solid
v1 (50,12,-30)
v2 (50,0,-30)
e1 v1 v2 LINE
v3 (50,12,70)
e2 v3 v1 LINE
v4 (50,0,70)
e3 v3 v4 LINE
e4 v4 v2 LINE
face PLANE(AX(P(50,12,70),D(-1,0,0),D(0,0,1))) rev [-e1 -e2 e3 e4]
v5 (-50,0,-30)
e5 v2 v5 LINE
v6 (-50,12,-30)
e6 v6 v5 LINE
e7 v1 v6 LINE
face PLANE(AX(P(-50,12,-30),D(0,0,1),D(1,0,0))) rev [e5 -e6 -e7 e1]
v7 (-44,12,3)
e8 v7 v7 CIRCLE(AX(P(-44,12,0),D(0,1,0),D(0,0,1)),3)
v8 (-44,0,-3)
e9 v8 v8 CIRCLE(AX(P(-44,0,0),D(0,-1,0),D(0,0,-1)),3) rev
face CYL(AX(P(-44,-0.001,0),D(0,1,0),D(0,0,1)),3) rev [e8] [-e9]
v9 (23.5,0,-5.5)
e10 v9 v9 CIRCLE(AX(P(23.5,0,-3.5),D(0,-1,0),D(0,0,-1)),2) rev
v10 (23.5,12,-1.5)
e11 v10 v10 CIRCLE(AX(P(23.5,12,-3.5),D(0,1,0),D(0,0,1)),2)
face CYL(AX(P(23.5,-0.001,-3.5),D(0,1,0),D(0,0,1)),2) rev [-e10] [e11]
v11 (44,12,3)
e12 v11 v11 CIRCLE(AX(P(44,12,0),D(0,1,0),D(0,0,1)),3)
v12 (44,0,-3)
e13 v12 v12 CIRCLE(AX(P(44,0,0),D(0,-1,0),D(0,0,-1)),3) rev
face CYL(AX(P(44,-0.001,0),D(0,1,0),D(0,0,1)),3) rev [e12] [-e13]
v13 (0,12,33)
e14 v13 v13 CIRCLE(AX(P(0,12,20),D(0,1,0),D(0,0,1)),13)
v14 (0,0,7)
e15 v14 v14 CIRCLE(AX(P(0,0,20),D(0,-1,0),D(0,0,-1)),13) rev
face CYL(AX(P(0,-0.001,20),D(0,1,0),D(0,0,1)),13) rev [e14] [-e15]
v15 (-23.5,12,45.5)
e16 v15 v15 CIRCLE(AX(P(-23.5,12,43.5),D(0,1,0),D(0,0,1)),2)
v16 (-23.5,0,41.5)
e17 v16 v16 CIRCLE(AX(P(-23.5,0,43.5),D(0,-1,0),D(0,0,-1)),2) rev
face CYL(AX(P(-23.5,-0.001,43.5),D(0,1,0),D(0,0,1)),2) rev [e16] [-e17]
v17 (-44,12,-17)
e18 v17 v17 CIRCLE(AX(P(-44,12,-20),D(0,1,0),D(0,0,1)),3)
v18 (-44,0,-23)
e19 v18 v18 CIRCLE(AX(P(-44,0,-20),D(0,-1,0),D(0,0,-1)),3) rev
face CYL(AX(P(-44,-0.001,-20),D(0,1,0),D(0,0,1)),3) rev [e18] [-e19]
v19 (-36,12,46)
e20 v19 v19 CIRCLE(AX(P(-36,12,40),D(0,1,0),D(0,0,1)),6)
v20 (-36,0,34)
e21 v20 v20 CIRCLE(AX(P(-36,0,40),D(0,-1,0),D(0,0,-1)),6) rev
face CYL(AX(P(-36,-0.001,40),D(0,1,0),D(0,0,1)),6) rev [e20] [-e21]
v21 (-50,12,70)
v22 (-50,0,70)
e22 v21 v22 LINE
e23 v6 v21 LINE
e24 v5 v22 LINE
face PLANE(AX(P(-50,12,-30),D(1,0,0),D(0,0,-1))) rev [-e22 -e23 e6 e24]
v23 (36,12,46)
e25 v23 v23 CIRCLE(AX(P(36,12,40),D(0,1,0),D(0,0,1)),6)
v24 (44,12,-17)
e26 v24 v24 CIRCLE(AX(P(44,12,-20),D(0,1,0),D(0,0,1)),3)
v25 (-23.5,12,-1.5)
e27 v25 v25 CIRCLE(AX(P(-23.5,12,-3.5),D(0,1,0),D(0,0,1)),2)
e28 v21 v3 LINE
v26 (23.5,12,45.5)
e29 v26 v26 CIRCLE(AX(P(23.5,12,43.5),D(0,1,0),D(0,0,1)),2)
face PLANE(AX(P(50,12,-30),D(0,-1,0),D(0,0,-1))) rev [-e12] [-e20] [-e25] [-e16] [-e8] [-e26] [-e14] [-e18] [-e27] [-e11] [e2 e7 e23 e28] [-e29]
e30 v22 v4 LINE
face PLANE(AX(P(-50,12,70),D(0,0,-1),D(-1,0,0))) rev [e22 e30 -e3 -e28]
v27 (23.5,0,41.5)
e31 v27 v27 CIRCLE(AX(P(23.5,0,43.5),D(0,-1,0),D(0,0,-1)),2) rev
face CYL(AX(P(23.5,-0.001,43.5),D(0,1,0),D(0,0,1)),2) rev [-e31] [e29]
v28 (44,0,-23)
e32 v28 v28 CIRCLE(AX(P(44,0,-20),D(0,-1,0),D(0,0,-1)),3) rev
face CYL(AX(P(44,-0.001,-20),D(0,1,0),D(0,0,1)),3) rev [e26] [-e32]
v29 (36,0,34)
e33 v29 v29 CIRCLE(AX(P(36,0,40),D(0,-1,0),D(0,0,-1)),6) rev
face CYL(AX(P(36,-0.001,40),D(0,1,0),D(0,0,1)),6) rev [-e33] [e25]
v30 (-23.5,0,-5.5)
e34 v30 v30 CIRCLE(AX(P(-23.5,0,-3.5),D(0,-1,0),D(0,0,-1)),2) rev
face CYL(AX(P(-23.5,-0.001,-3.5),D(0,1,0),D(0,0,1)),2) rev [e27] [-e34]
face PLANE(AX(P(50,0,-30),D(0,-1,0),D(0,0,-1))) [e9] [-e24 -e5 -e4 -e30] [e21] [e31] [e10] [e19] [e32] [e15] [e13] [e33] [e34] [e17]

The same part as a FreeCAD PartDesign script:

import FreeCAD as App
import Part
import Sketcher
Q = App.Units.Quantity


def add_polygon(sketch, points):
    """Adds a closed chain of lines whose ends are joined by coincident constraints."""
    first, n = sketch.GeometryCount, len(points)
    for a, b in zip(points, points[1:] + points[:1]):
        sketch.addGeometry(Part.LineSegment(App.Vector(*a, 0), App.Vector(*b, 0)), False)
    for i in range(n):
        sketch.addConstraint(Sketcher.Constraint("Coincident", first + i, 2, first + (i + 1) % n, 1))

doc = App.newDocument("Part")
body = doc.addObject("PartDesign::Body", "Body")

# Sketch on XZ plane
sketch1 = doc.addObject("Sketcher::SketchObject", "Sketch")
body.addObject(sketch1)
sketch1.AttachmentSupport = (doc.XZ_Plane, [""])
sketch1.MapMode = "FlatFace"
add_polygon(sketch1, [(-50, -30), (-50, 70), (50, 70), (50, -30)])  # lines 0-3
sketch1.addConstraint([
    Sketcher.Constraint("Vertical", 0),
    Sketcher.Constraint("Horizontal", 1),
    Sketcher.Constraint("Vertical", 2),
    Sketcher.Constraint("Horizontal", 3),
    Sketcher.Constraint("Equal", 3, 0),
    Sketcher.Constraint("DistanceX", 1, 1, 1, 2, Q("100 mm")),
    Sketcher.Constraint("DistanceX", 0, 2, -1, 1, Q("50 mm")),
    Sketcher.Constraint("DistanceY", -1, 1, 0, 2, Q("70 mm")),
])
pad1 = doc.addObject("PartDesign::Pad", "Pad")
body.addObject(pad1)
pad1.Profile = sketch1
pad1.Length = 12
pad1.Reversed = True

# Sketch on XZ plane
sketch2 = doc.addObject("Sketcher::SketchObject", "Sketch001")
body.addObject(sketch2)
sketch2.AttachmentSupport = (doc.XZ_Plane, [""])
sketch2.MapMode = "FlatFace"
sketch2.AttachmentOffset = App.Placement(App.Vector(0, 0, -12), App.Rotation())
sketch2.addGeometry(Part.Circle(App.Vector(-44, -20, 0), App.Vector(0, 0, 1), 3), False)
sketch2.addConstraint([
    Sketcher.Constraint("Diameter", 0, Q("6 mm")),
    Sketcher.Constraint("DistanceX", 0, 3, -1, 1, Q("44 mm")),
    Sketcher.Constraint("DistanceY", 0, 3, -1, 1, Q("20 mm")),
])
pocket1 = doc.addObject("PartDesign::Pocket", "Pocket")
body.addObject(pocket1)
pocket1.Profile = sketch2
pocket1.Type = "UpToFirst"
pocket1.Reversed = True

# Sketch on XZ plane
sketch3 = doc.addObject("Sketcher::SketchObject", "Sketch002")
body.addObject(sketch3)
sketch3.AttachmentSupport = (doc.XZ_Plane, [""])
sketch3.MapMode = "FlatFace"
sketch3.AttachmentOffset = App.Placement(App.Vector(0, 0, -12), App.Rotation())
sketch3.addGeometry(Part.Circle(App.Vector(-44, 0, 0), App.Vector(0, 0, 1), 3), False)
sketch3.addConstraint([
    Sketcher.Constraint("PointOnObject", 0, 3, -1),
    Sketcher.Constraint("Diameter", 0, Q("6 mm")),
    Sketcher.Constraint("DistanceX", 0, 3, -1, 1, Q("44 mm")),
])
pocket2 = doc.addObject("PartDesign::Pocket", "Pocket001")
body.addObject(pocket2)
pocket2.Profile = sketch3
pocket2.Type = "UpToFirst"
pocket2.Reversed = True

# Sketch on XZ plane
sketch4 = doc.addObject("Sketcher::SketchObject", "Sketch003")
body.addObject(sketch4)
sketch4.AttachmentSupport = (doc.XZ_Plane, [""])
sketch4.MapMode = "FlatFace"
sketch4.AttachmentOffset = App.Placement(App.Vector(0, 0, -12), App.Rotation())
sketch4.addGeometry(Part.Circle(App.Vector(44, -20, 0), App.Vector(0, 0, 1), 3), False)
sketch4.addConstraint([
    Sketcher.Constraint("Diameter", 0, Q("6 mm")),
    Sketcher.Constraint("DistanceX", -1, 1, 0, 3, Q("44 mm")),
    Sketcher.Constraint("DistanceY", 0, 3, -1, 1, Q("20 mm")),
])
pocket3 = doc.addObject("PartDesign::Pocket", "Pocket002")
body.addObject(pocket3)
pocket3.Profile = sketch4
pocket3.Type = "UpToFirst"
pocket3.Reversed = True

# Sketch on XZ plane
sketch5 = doc.addObject("Sketcher::SketchObject", "Sketch004")
body.addObject(sketch5)
sketch5.AttachmentSupport = (doc.XZ_Plane, [""])
sketch5.MapMode = "FlatFace"
sketch5.AttachmentOffset = App.Placement(App.Vector(0, 0, -12), App.Rotation())
sketch5.addGeometry(Part.Circle(App.Vector(44, 0, 0), App.Vector(0, 0, 1), 3), False)
sketch5.addConstraint([
    Sketcher.Constraint("PointOnObject", 0, 3, -1),
    Sketcher.Constraint("Diameter", 0, Q("6 mm")),
    Sketcher.Constraint("DistanceX", -1, 1, 0, 3, Q("44 mm")),
])
pocket4 = doc.addObject("PartDesign::Pocket", "Pocket003")
body.addObject(pocket4)
pocket4.Profile = sketch5
pocket4.Type = "UpToFirst"
pocket4.Reversed = True

# Sketch on XZ plane
sketch6 = doc.addObject("Sketcher::SketchObject", "Sketch005")
body.addObject(sketch6)
sketch6.AttachmentSupport = (doc.XZ_Plane, [""])
sketch6.MapMode = "FlatFace"
sketch6.AttachmentOffset = App.Placement(App.Vector(0, 0, -12), App.Rotation())
sketch6.addGeometry(Part.Circle(App.Vector(-23.5, 43.5, 0), App.Vector(0, 0, 1), 2), False)
sketch6.addConstraint([
    Sketcher.Constraint("Diameter", 0, Q("4 mm")),
    Sketcher.Constraint("DistanceX", 0, 3, -1, 1, Q("23.5 mm")),
    Sketcher.Constraint("DistanceY", -1, 1, 0, 3, Q("43.5 mm")),
])
pocket5 = doc.addObject("PartDesign::Pocket", "Pocket004")
body.addObject(pocket5)
pocket5.Profile = sketch6
pocket5.Type = "UpToFirst"
pocket5.Reversed = True

# Sketch on XZ plane
sketch7 = doc.addObject("Sketcher::SketchObject", "Sketch006")
body.addObject(sketch7)
sketch7.AttachmentSupport = (doc.XZ_Plane, [""])
sketch7.MapMode = "FlatFace"
sketch7.AttachmentOffset = App.Placement(App.Vector(0, 0, -12), App.Rotation())
sketch7.addGeometry(Part.Circle(App.Vector(23.5, 43.5, 0), App.Vector(0, 0, 1), 2), False)
sketch7.addConstraint([
    Sketcher.Constraint("Diameter", 0, Q("4 mm")),
    Sketcher.Constraint("DistanceX", -1, 1, 0, 3, Q("23.5 mm")),
    Sketcher.Constraint("DistanceY", -1, 1, 0, 3, Q("43.5 mm")),
])
pocket6 = doc.addObject("PartDesign::Pocket", "Pocket005")
body.addObject(pocket6)
pocket6.Profile = sketch7
pocket6.Type = "UpToFirst"
pocket6.Reversed = True

# Sketch on XZ plane
sketch8 = doc.addObject("Sketcher::SketchObject", "Sketch007")
body.addObject(sketch8)
sketch8.AttachmentSupport = (doc.XZ_Plane, [""])
sketch8.MapMode = "FlatFace"
sketch8.AttachmentOffset = App.Placement(App.Vector(0, 0, -12), App.Rotation())
sketch8.addGeometry(Part.Circle(App.Vector(23.5, -3.5, 0), App.Vector(0, 0, 1), 2), False)
sketch8.addConstraint([
    Sketcher.Constraint("Diameter", 0, Q("4 mm")),
    Sketcher.Constraint("DistanceX", -1, 1, 0, 3, Q("23.5 mm")),
    Sketcher.Constraint("DistanceY", 0, 3, -1, 1, Q("3.5 mm")),
])
pocket7 = doc.addObject("PartDesign::Pocket", "Pocket006")
body.addObject(pocket7)
pocket7.Profile = sketch8
pocket7.Type = "UpToFirst"
pocket7.Reversed = True

# Sketch on XZ plane
sketch9 = doc.addObject("Sketcher::SketchObject", "Sketch008")
body.addObject(sketch9)
sketch9.AttachmentSupport = (doc.XZ_Plane, [""])
sketch9.MapMode = "FlatFace"
sketch9.AttachmentOffset = App.Placement(App.Vector(0, 0, -12), App.Rotation())
sketch9.addGeometry(Part.Circle(App.Vector(-23.5, -3.5, 0), App.Vector(0, 0, 1), 2), False)
sketch9.addConstraint([
    Sketcher.Constraint("Diameter", 0, Q("4 mm")),
    Sketcher.Constraint("DistanceX", 0, 3, -1, 1, Q("23.5 mm")),
    Sketcher.Constraint("DistanceY", 0, 3, -1, 1, Q("3.5 mm")),
])
pocket8 = doc.addObject("PartDesign::Pocket", "Pocket007")
body.addObject(pocket8)
pocket8.Profile = sketch9
pocket8.Type = "UpToFirst"
pocket8.Reversed = True

# Sketch on XZ plane
sketch10 = doc.addObject("Sketcher::SketchObject", "Sketch009")
body.addObject(sketch10)
sketch10.AttachmentSupport = (doc.XZ_Plane, [""])
sketch10.MapMode = "FlatFace"
sketch10.AttachmentOffset = App.Placement(App.Vector(0, 0, -12), App.Rotation())
sketch10.addGeometry(Part.Circle(App.Vector(0, 20, 0), App.Vector(0, 0, 1), 13), False)
sketch10.addConstraint([
    Sketcher.Constraint("PointOnObject", 0, 3, -2),
    Sketcher.Constraint("Diameter", 0, Q("26 mm")),
    Sketcher.Constraint("DistanceY", -1, 1, 0, 3, Q("20 mm")),
])
pocket9 = doc.addObject("PartDesign::Pocket", "Pocket008")
body.addObject(pocket9)
pocket9.Profile = sketch10
pocket9.Type = "UpToFirst"
pocket9.Reversed = True

# Sketch on XZ plane
sketch11 = doc.addObject("Sketcher::SketchObject", "Sketch010")
body.addObject(sketch11)
sketch11.AttachmentSupport = (doc.XZ_Plane, [""])
sketch11.MapMode = "FlatFace"
sketch11.AttachmentOffset = App.Placement(App.Vector(0, 0, -12), App.Rotation())
sketch11.addGeometry(Part.Circle(App.Vector(-36, 40, 0), App.Vector(0, 0, 1), 6), False)
sketch11.addConstraint([
    Sketcher.Constraint("Diameter", 0, Q("12 mm")),
    Sketcher.Constraint("DistanceX", 0, 3, -1, 1, Q("36 mm")),
    Sketcher.Constraint("DistanceY", -1, 1, 0, 3, Q("40 mm")),
])
pocket10 = doc.addObject("PartDesign::Pocket", "Pocket009")
body.addObject(pocket10)
pocket10.Profile = sketch11
pocket10.Type = "UpToFirst"
pocket10.Reversed = True

# Sketch on XZ plane
sketch12 = doc.addObject("Sketcher::SketchObject", "Sketch011")
body.addObject(sketch12)
sketch12.AttachmentSupport = (doc.XZ_Plane, [""])
sketch12.MapMode = "FlatFace"
sketch12.AttachmentOffset = App.Placement(App.Vector(0, 0, -12), App.Rotation())
sketch12.addGeometry(Part.Circle(App.Vector(36, 40, 0), App.Vector(0, 0, 1), 6), False)
sketch12.addConstraint([
    Sketcher.Constraint("Diameter", 0, Q("12 mm")),
    Sketcher.Constraint("DistanceX", -1, 1, 0, 3, Q("36 mm")),
    Sketcher.Constraint("DistanceY", -1, 1, 0, 3, Q("40 mm")),
])
pocket11 = doc.addObject("PartDesign::Pocket", "Pocket010")
body.addObject(pocket11)
pocket11.Profile = sketch12
pocket11.Type = "UpToFirst"
pocket11.Reversed = True

doc.recompute()
